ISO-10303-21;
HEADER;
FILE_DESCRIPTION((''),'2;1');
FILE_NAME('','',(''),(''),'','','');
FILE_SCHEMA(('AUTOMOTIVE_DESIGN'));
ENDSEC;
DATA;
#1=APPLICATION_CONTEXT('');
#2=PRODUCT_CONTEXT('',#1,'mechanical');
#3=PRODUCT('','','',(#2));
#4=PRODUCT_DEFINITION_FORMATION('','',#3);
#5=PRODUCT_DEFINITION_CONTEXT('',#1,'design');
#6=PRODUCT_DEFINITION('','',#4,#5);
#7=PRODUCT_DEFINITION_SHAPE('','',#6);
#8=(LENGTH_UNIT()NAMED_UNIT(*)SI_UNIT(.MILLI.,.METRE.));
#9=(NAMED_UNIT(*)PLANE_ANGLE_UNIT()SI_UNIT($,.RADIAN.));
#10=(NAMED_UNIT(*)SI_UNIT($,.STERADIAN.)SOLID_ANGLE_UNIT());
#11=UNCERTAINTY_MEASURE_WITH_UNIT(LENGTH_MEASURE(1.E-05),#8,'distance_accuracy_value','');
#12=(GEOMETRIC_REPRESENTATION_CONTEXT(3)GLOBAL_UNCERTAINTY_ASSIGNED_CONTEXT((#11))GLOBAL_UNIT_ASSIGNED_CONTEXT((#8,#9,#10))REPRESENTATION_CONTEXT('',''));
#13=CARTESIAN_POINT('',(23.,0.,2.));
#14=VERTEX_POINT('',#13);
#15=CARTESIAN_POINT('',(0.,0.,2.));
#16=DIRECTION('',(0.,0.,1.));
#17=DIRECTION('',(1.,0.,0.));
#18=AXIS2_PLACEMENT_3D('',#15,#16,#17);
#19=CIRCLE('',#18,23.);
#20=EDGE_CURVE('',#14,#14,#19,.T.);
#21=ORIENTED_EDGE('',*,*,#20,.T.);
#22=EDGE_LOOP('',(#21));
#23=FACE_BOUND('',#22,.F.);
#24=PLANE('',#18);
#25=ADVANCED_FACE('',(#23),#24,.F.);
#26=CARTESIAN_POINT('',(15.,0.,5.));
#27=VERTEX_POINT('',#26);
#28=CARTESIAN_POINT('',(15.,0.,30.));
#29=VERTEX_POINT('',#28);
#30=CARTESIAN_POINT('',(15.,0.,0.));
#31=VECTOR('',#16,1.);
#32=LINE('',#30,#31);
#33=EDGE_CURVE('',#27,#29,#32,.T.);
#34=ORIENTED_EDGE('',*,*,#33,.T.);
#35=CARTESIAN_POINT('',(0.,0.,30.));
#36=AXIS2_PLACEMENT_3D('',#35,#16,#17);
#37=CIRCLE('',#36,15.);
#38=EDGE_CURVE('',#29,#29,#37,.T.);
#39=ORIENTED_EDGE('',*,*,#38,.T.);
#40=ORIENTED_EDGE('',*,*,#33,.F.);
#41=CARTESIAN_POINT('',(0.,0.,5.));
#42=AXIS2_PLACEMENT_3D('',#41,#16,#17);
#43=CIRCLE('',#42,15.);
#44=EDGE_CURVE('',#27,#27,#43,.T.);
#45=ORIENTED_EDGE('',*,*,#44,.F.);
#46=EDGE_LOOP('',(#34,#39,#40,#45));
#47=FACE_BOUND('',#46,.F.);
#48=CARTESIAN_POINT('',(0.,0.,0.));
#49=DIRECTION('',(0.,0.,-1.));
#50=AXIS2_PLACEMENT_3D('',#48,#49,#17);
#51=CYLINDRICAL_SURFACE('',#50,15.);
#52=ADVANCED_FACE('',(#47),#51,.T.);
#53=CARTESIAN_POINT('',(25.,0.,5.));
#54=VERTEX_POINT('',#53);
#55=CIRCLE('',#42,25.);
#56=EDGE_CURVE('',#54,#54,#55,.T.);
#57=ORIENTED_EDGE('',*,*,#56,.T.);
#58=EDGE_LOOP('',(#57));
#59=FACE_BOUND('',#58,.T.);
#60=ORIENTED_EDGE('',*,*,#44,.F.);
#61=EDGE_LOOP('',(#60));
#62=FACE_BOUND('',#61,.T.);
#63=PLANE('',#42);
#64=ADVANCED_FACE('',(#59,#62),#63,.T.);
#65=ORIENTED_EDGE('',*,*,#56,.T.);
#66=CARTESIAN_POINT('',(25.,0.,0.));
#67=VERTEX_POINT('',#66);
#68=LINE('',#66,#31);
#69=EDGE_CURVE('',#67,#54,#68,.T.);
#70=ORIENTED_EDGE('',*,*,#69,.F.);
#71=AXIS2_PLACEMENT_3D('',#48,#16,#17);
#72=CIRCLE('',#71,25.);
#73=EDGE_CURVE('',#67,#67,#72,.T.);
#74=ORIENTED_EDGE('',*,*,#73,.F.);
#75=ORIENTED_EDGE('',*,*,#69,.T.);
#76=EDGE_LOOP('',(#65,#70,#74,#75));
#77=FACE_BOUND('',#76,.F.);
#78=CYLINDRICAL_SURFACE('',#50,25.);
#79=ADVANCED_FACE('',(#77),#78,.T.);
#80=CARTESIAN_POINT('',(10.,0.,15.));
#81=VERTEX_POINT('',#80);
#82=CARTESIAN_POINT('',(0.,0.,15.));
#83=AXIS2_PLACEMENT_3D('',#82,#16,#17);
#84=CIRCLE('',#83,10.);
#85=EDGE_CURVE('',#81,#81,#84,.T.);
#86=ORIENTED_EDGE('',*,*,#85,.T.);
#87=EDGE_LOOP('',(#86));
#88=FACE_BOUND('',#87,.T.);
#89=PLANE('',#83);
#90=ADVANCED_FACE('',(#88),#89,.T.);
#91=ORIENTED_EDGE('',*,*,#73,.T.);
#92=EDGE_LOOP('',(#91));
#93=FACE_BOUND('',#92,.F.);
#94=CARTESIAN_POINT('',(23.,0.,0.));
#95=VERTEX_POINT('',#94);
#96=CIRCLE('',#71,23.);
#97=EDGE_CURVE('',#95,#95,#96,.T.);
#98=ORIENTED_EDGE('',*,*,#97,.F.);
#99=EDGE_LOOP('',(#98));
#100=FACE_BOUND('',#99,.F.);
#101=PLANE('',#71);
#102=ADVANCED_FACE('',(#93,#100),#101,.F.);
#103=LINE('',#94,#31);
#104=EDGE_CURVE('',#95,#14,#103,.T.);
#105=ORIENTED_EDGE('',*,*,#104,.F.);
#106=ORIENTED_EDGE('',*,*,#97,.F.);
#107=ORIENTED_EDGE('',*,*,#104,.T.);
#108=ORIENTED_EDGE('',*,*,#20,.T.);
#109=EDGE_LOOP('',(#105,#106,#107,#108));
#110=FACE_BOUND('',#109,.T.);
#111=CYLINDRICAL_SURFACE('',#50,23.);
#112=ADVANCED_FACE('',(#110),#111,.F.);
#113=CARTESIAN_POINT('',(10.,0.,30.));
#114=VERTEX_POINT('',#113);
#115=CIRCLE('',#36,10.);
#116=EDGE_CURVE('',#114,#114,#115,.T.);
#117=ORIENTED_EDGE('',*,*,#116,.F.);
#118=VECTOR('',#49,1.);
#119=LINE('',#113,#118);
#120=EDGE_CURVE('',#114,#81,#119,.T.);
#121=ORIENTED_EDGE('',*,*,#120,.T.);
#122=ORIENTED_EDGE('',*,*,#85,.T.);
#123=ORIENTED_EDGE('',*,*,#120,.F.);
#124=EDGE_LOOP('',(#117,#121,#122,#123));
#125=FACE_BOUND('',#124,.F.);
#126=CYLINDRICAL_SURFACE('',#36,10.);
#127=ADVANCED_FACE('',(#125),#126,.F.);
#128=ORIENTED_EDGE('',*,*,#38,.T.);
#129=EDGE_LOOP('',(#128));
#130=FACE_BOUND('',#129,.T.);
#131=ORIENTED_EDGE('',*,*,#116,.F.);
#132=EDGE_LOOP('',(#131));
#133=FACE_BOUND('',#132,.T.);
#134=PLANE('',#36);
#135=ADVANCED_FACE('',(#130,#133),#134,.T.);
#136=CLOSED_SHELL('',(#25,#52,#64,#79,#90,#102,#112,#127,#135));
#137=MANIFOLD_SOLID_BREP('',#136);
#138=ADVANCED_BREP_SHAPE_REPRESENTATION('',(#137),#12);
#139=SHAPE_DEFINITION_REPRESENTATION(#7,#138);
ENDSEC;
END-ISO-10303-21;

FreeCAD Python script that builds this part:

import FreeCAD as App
import Part
import Sketcher
Q = App.Units.Quantity

doc = App.newDocument("Part")
body = doc.addObject("PartDesign::Body", "Body")

# Sketch on XY plane
sketch1 = body.newObject("Sketcher::SketchObject", "Sketch")
sketch1.AttachmentSupport = (doc.getObject("XY_Plane"), [""])
sketch1.MapMode = "FlatFace"
sketch1.addGeometry([
    Part.Circle(App.Vector(0, 0, 0), App.Vector(0, 0, 1), 25),
    Part.Circle(App.Vector(0, 0, 0), App.Vector(0, 0, 1), 15),
], False)
sketch1.addConstraint([
    Sketcher.Constraint("Coincident", 0, 3, -1, 1),
    Sketcher.Constraint("Coincident", 1, 3, -1, 1),
    Sketcher.Constraint("Diameter", 0, Q("50 mm")),
    Sketcher.Constraint("Diameter", 1, Q("30 mm")),
])
pad1 = body.newObject("PartDesign::Pad", "Pad")
pad1.Profile = sketch1
pad1.Length = 5

# Sketch on XY plane
sketch2 = body.newObject("Sketcher::SketchObject", "Sketch001")
sketch2.AttachmentSupport = (doc.getObject("XY_Plane"), [""])
sketch2.MapMode = "FlatFace"
sketch2.addGeometry(Part.Circle(App.Vector(0, 0, 0), App.Vector(0, 0, 1), 15), False)
sketch2.addConstraint([
    Sketcher.Constraint("Coincident", 0, 3, -1, 1),
    Sketcher.Constraint("Diameter", 0, Q("30 mm")),
])
pad2 = body.newObject("PartDesign::Pad", "Pad001")
pad2.Profile = sketch2
pad2.Length = 30

# Sketch on XY plane
sketch3 = body.newObject("Sketcher::SketchObject", "Sketch002")
sketch3.AttachmentSupport = (doc.getObject("XY_Plane"), [""])
sketch3.MapMode = "FlatFace"
sketch3.AttachmentOffset = App.Placement(App.Vector(0, 0, 30), App.Rotation())
sketch3.addGeometry(Part.Circle(App.Vector(0, 0, 0), App.Vector(0, 0, 1), 10), False)
sketch3.addConstraint([
    Sketcher.Constraint("Coincident", 0, 3, -1, 1),
    Sketcher.Constraint("Diameter", 0, Q("20 mm")),
])
pocket1 = body.newObject("PartDesign::Pocket", "Pocket")
pocket1.Profile = sketch3
pocket1.Length = 15

# Sketch on XY plane
sketch4 = body.newObject("Sketcher::SketchObject", "Sketch003")
sketch4.AttachmentSupport = (doc.getObject("XY_Plane"), [""])
sketch4.MapMode = "FlatFace"
sketch4.addGeometry(Part.Circle(App.Vector(0, 0, 0), App.Vector(0, 0, 1), 23), False)
sketch4.addConstraint([
    Sketcher.Constraint("Coincident", 0, 3, -1, 1),
    Sketcher.Constraint("Diameter", 0, Q("46 mm")),
])
pocket2 = body.newObject("PartDesign::Pocket", "Pocket001")
pocket2.Profile = sketch4
pocket2.Length = 2
pocket2.Reversed = True

doc.recompute()
